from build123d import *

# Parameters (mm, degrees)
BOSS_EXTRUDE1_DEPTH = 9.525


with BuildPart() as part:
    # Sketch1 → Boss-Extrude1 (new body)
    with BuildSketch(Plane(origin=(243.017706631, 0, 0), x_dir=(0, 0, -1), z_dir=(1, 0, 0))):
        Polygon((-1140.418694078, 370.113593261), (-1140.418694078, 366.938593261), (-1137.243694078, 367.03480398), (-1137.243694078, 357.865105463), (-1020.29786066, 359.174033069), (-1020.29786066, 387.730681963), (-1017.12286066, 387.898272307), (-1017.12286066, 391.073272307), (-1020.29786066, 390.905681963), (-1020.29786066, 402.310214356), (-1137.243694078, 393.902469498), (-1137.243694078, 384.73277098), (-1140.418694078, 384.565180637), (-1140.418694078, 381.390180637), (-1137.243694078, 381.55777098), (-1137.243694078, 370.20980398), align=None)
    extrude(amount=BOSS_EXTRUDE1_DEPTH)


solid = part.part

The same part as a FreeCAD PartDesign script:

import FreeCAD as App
import Part
import Sketcher
Q = App.Units.Quantity

doc = App.newDocument("Part")
body = doc.addObject("PartDesign::Body", "Body")

sketch1 = body.newObject("Sketcher::SketchObject", "Sketch")
sketch1.AttachmentSupport = (doc.getObject("YZ_Plane"), [""])
sketch1.MapMode = "FlatFace"
sketch1.AttachmentOffset = App.Placement(App.Vector(0, 0, 243.017707), App.Rotation())
sketch1.addGeometry([
    Part.LineSegment(App.Vector(370.1, 1140.4, 0), App.Vector(366.9, 1140.4, 0)),
    Part.LineSegment(App.Vector(366.9, 1140.4, 0), App.Vector(367, 1137.2, 0)),
    Part.LineSegment(App.Vector(367, 1137.2, 0), App.Vector(357.9, 1137.2, 0)),
    Part.LineSegment(App.Vector(357.9, 1137.2, 0), App.Vector(359.2, 1020.3, 0)),
    Part.LineSegment(App.Vector(359.2, 1020.3, 0), App.Vector(387.7, 1020.3, 0)),
    Part.LineSegment(App.Vector(387.7, 1020.3, 0), App.Vector(387.9, 1017.1, 0)),
    Part.LineSegment(App.Vector(387.9, 1017.1, 0), App.Vector(391.1, 1017.1, 0)),
    Part.LineSegment(App.Vector(391.1, 1017.1, 0), App.Vector(390.9, 1020.3, 0)),
    Part.LineSegment(App.Vector(390.9, 1020.3, 0), App.Vector(402.3, 1020.3, 0)),
    Part.LineSegment(App.Vector(402.3, 1020.3, 0), App.Vector(393.9, 1137.2, 0)),
    Part.LineSegment(App.Vector(393.9, 1137.2, 0), App.Vector(384.7, 1137.2, 0)),
    Part.LineSegment(App.Vector(384.7, 1137.2, 0), App.Vector(384.6, 1140.4, 0)),
    Part.LineSegment(App.Vector(384.6, 1140.4, 0), App.Vector(381.4, 1140.4, 0)),
    Part.LineSegment(App.Vector(381.4, 1140.4, 0), App.Vector(381.6, 1137.2, 0)),
    Part.LineSegment(App.Vector(381.6, 1137.2, 0), App.Vector(370.2, 1137.2, 0)),
    Part.LineSegment(App.Vector(370.2, 1137.2, 0), App.Vector(370.1, 1140.4, 0)),
], False)
sketch1.addConstraint([
    Sketcher.Constraint("Coincident", 0, 2, 1, 1),
    Sketcher.Constraint("Coincident", 1, 2, 2, 1),
    Sketcher.Constraint("Coincident", 2, 2, 3, 1),
    Sketcher.Constraint("Coincident", 3, 2, 4, 1),
    Sketcher.Constraint("Coincident", 4, 2, 5, 1),
    Sketcher.Constraint("Coincident", 5, 2, 6, 1),
    Sketcher.Constraint("Coincident", 6, 2, 7, 1),
    Sketcher.Constraint("Coincident", 7, 2, 8, 1),
    Sketcher.Constraint("Coincident", 8, 2, 9, 1),
    Sketcher.Constraint("Coincident", 9, 2, 10, 1),
    Sketcher.Constraint("Coincident", 10, 2, 11, 1),
    Sketcher.Constraint("Coincident", 11, 2, 12, 1),
    Sketcher.Constraint("Coincident", 12, 2, 13, 1),
    Sketcher.Constraint("Coincident", 13, 2, 14, 1),
    Sketcher.Constraint("Coincident", 14, 2, 15, 1),
    Sketcher.Constraint("Coincident", 15, 2, 0, 1),
    Sketcher.Constraint("Horizontal", 0),
    Sketcher.Constraint("Horizontal", 2),
    Sketcher.Constraint("Horizontal", 4),
    Sketcher.Constraint("Horizontal", 6),
    Sketcher.Constraint("Horizontal", 8),
    Sketcher.Constraint("Horizontal", 10),
    Sketcher.Constraint("Horizontal", 12),
    Sketcher.Constraint("Horizontal", 14),
    Sketcher.Constraint("Parallel", 5, 7),
    Sketcher.Constraint("Parallel", 7, 11),
    Sketcher.Constraint("Parallel", 11, 13),
    Sketcher.Constraint("Parallel", 1, 15),
    Sketcher.Constraint("Horizontal", 4, 2, 7, 2),
    Sketcher.Constraint("Horizontal", 2, 2, 9, 2),
    Sketcher.Constraint("Horizontal", 0, 2, 11, 2),
    Sketcher.Constraint("Horizontal", 10, 2, 13, 2),
    Sketcher.Constraint("Equal", 0, 6),
    Sketcher.Constraint("Equal", 2, 10),
    Sketcher.Constraint("Equal", 6, 12),
    Sketcher.Constraint("Equal", 7, 11),
    Sketcher.Constraint("DistanceX", 0, 2, 0, 1, Q("0.125 in")),
    Sketcher.Constraint("DistanceY", 1, 2, 0, 2, Q("0.125 in")),
    Sketcher.Constraint("DistanceX", 2, 2, 2, 1, 9.169699),
    Sketcher.Constraint("DistanceX", 4, 1, 4, 2, 28.556649),
    Sketcher.Constraint("Distance", 3, 116.953158),
    Sketcher.Constraint("Distance", 5, 3.17942),
    Sketcher.Constraint("Distance", 9, 117.247679),
    Sketcher.Constraint("DistanceX", 8, 1, 8, 2, 11.404532),
    Sketcher.Constraint("DistanceX", 14, 2, 14, 1, 11.347967),
    Sketcher.Constraint("DistanceY", -1, 1, 3, 2, 1020.297861),
    Sketcher.Constraint("DistanceX", -1, 1, 4, 2, 387.730682),
    Sketcher.Constraint("DistanceX", 0, 2, 1, 2, 0.096211),
])
pad1 = body.newObject("PartDesign::Pad", "Pad")
pad1.Profile = sketch1
pad1.Length = Q("0.375 in")

doc.recompute()
